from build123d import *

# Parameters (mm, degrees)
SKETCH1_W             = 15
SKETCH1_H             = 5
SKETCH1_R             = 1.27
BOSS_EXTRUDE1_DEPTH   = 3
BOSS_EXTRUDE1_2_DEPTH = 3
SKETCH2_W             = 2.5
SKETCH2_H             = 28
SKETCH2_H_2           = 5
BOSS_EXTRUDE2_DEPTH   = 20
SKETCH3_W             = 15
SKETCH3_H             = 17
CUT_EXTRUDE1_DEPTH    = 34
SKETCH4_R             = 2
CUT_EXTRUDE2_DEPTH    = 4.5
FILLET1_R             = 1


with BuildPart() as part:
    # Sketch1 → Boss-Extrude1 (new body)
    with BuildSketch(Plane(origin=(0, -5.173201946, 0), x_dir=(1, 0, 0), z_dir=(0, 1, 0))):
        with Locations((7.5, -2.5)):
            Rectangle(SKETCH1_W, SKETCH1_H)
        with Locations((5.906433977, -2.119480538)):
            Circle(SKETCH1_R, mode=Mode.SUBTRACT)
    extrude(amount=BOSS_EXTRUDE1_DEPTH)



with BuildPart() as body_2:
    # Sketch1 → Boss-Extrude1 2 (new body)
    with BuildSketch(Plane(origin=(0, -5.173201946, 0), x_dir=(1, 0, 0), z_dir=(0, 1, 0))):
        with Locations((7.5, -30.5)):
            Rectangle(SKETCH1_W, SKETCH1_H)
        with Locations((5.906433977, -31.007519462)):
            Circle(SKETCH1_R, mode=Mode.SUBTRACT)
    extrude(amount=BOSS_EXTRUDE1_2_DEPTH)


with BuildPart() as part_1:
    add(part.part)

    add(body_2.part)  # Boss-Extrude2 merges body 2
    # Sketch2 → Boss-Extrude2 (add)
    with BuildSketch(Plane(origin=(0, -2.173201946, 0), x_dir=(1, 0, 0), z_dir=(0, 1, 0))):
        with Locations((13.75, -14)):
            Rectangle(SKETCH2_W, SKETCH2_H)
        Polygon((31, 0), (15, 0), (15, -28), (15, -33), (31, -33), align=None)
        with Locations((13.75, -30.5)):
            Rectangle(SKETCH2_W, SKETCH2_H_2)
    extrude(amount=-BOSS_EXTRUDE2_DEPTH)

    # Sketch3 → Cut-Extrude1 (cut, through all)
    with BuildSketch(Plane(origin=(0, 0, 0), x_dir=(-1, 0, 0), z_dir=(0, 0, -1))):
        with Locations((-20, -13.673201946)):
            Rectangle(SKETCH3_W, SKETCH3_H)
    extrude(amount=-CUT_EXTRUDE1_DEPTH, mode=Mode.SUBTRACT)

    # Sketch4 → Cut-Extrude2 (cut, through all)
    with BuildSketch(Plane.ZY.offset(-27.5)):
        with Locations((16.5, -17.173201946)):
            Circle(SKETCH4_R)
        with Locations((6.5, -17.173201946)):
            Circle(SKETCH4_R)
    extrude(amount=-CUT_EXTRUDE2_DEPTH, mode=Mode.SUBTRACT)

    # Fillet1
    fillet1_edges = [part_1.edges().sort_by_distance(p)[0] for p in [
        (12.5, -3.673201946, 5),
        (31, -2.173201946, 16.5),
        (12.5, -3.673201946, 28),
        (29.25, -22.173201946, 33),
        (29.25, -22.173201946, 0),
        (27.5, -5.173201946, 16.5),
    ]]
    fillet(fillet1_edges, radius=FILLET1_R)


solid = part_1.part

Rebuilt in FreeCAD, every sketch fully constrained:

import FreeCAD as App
import Part
import Sketcher

V = App.Vector
Q = App.Units.Quantity


def edges_at(feature, points):
    """Names of the edges that pass closest to the given points."""
    edges = feature.Shape.Edges
    near = lambda p: min(range(len(edges)), key=lambda i: edges[i].distToShape(Part.Vertex(*p))[0])
    return sorted({f"Edge{near(p) + 1}" for p in points})

doc = App.newDocument("Part")
body = doc.addObject("PartDesign::Body", "Body")

# Sketch on XZ plane
sketch1 = doc.addObject("Sketcher::SketchObject", "Sketch")
body.addObject(sketch1)
sketch1.AttachmentSupport = (doc.XZ_Plane, [""])
sketch1.MapMode = "FlatFace"
sketch1.AttachmentOffset = App.Placement(V(0, 0, 5.173202), App.Rotation())
sketch1.addGeometry([
    Part.LineSegment(V(0, 0, 0), V(0, 5, 0)),  # 0
    Part.LineSegment(V(0, 5, 0), V(15, 5, 0)),  # 1
    Part.LineSegment(V(15, 5, 0), V(15, 0, 0)),  # 2
    Part.LineSegment(V(15, 0, 0), V(0, 0, 0)),  # 3
    Part.Circle(V(5.9, 2.1, 0), V(0, 0, 1), 1.3),  # 4
], False)
sketch1.addConstraint([
    Sketcher.Constraint("Coincident", 0, 2, 1, 1),
    Sketcher.Constraint("Coincident", 1, 2, 2, 1),
    Sketcher.Constraint("Coincident", 2, 2, 3, 1),
    Sketcher.Constraint("Coincident", 3, 2, 0, 1),
    Sketcher.Constraint("Vertical", 0),
    Sketcher.Constraint("Horizontal", 1),
    Sketcher.Constraint("Vertical", 2),
    Sketcher.Constraint("Horizontal", 3),
    Sketcher.Constraint("Coincident", 3, 2, -1, 1),
    Sketcher.Constraint("Diameter", 4, Q("2.54 mm")),
    Sketcher.Constraint("DistanceX", 1, 1, 1, 2, Q("15 mm")),
    Sketcher.Constraint("DistanceY", 0, 1, 0, 2, Q("5 mm")),
    Sketcher.Constraint("DistanceY", -1, 1, 4, 3, Q("2.119481 mm")),
    Sketcher.Constraint("DistanceX", -1, 1, 4, 3, Q("5.906434 mm")),
])
pad1 = doc.addObject("PartDesign::Pad", "Pad")
body.addObject(pad1)
pad1.Profile = sketch1
pad1.Length = 3
pad1.Reversed = True
body2 = doc.addObject("PartDesign::Body", "Body001")

# Sketch on XZ plane
sketch2 = doc.addObject("Sketcher::SketchObject", "Sketch001")
body2.addObject(sketch2)
sketch2.AttachmentSupport = (doc.getObject("XZ_Plane001"), [""])
sketch2.MapMode = "FlatFace"
sketch2.AttachmentOffset = App.Placement(V(0, 0, 5.173202), App.Rotation())
sketch2.addGeometry([
    Part.LineSegment(V(0, 28, 0), V(0, 33, 0)),  # 0
    Part.LineSegment(V(0, 33, 0), V(15, 33, 0)),  # 1
    Part.LineSegment(V(15, 33, 0), V(15, 28, 0)),  # 2
    Part.LineSegment(V(15, 28, 0), V(0, 28, 0)),  # 3
    Part.Circle(V(5.9, 31, 0), V(0, 0, 1), 1.3),  # 4
], False)
sketch2.addConstraint([
    Sketcher.Constraint("Coincident", 0, 2, 1, 1),
    Sketcher.Constraint("Coincident", 1, 2, 2, 1),
    Sketcher.Constraint("Coincident", 2, 2, 3, 1),
    Sketcher.Constraint("Coincident", 3, 2, 0, 1),
    Sketcher.Constraint("Vertical", 0),
    Sketcher.Constraint("Horizontal", 1),
    Sketcher.Constraint("Vertical", 2),
    Sketcher.Constraint("Horizontal", 3),
    Sketcher.Constraint("PointOnObject", 0, 2, -2),
    Sketcher.Constraint("Diameter", 4, Q("2.54 mm")),
    Sketcher.Constraint("DistanceX", 1, 1, 1, 2, Q("15 mm")),
    Sketcher.Constraint("DistanceY", 0, 1, 0, 2, Q("5 mm")),
    Sketcher.Constraint("DistanceY", -1, 1, 0, 2, Q("33 mm")),
    Sketcher.Constraint("DistanceY", -1, 1, 4, 3, Q("31.007519 mm")),
    Sketcher.Constraint("DistanceX", -1, 1, 4, 3, Q("5.906434 mm")),
])
pad2 = doc.addObject("PartDesign::Pad", "Pad001")
body2.addObject(pad2)
pad2.Profile = sketch2
pad2.Length = 3
pad2.Reversed = True
body.AllowCompound = True
doc.recompute()

boolean = doc.addObject("PartDesign::Boolean", "Boolean")
body.addObject(boolean)
boolean.Type = "Fuse"
boolean.addObjects([body2])

# Sketch on XZ plane
sketch3 = doc.addObject("Sketcher::SketchObject", "Sketch002")
body.addObject(sketch3)
sketch3.AttachmentSupport = (doc.XZ_Plane, [""])
sketch3.MapMode = "FlatFace"
sketch3.AttachmentOffset = App.Placement(V(0, 0, 2.173202), App.Rotation())
sketch3.addGeometry([
    Part.LineSegment(V(12, 0, 0), V(12, 33, 0)),
    Part.LineSegment(V(12, 33, 0), V(31, 33, 0)),
    Part.LineSegment(V(31, 33, 0), V(31, 0, 0)),
    Part.LineSegment(V(31, 0, 0), V(12, 0, 0)),
], False)
sketch3.addConstraint([
    Sketcher.Constraint("Coincident", 0, 2, 1, 1),
    Sketcher.Constraint("Coincident", 1, 2, 2, 1),
    Sketcher.Constraint("Coincident", 2, 2, 3, 1),
    Sketcher.Constraint("Coincident", 3, 2, 0, 1),
    Sketcher.Constraint("Vertical", 0),
    Sketcher.Constraint("Horizontal", 1),
    Sketcher.Constraint("Vertical", 2),
    Sketcher.Constraint("Horizontal", 3),
    Sketcher.Constraint("PointOnObject", 2, 2, -1),
    Sketcher.Constraint("DistanceY", 0, 1, 0, 2, Q("33 mm")),
    Sketcher.Constraint("DistanceX", 1, 1, 1, 2, Q("18.5 mm")),
    Sketcher.Constraint("DistanceX", -1, 1, 1, 2, Q("31 mm")),
])
pad3 = doc.addObject("PartDesign::Pad", "Pad002")
body.addObject(pad3)
pad3.Profile = sketch3
pad3.Length = 20

# Sketch on XY plane
sketch4 = doc.addObject("Sketcher::SketchObject", "Sketch003")
body.addObject(sketch4)
sketch4.AttachmentSupport = (doc.XY_Plane, [""])
sketch4.MapMode = "FlatFace"
sketch4.addGeometry([
    Part.LineSegment(V(28, -5, 0), V(28, -22, 0)),
    Part.LineSegment(V(28, -22, 0), V(12, -22, 0)),
    Part.LineSegment(V(12, -22, 0), V(12, -5, 0)),
    Part.LineSegment(V(12, -5, 0), V(28, -5, 0)),
], False)
sketch4.addConstraint([
    Sketcher.Constraint("Coincident", 0, 2, 1, 1),
    Sketcher.Constraint("Coincident", 1, 2, 2, 1),
    Sketcher.Constraint("Coincident", 2, 2, 3, 1),
    Sketcher.Constraint("Coincident", 3, 2, 0, 1),
    Sketcher.Constraint("Vertical", 0),
    Sketcher.Constraint("Horizontal", 1),
    Sketcher.Constraint("Vertical", 2),
    Sketcher.Constraint("Horizontal", 3),
    Sketcher.Constraint("DistanceX", 1, 2, 1, 1, Q("15 mm")),
    Sketcher.Constraint("DistanceY", 0, 2, 0, 1, Q("17 mm")),
    Sketcher.Constraint("DistanceX", -1, 1, 0, 2, Q("27.5 mm")),
    Sketcher.Constraint("DistanceY", 0, 2, -1, 1, Q("22.173202 mm")),
])
pocket1 = doc.addObject("PartDesign::Pocket", "Pocket")
body.addObject(pocket1)
pocket1.Profile = sketch4
pocket1.Type = "ThroughAll"
pocket1.Reversed = True

# Sketch on YZ plane
sketch5 = doc.addObject("Sketcher::SketchObject", "Sketch004")
body.addObject(sketch5)
sketch5.AttachmentSupport = (doc.YZ_Plane, [""])
sketch5.MapMode = "FlatFace"
sketch5.AttachmentOffset = App.Placement(V(0, 0, 27.5), App.Rotation())
sketch5.addGeometry([
    Part.Circle(V(-17.2, 16.5, 0), V(0, 0, 1), 2),
    Part.Circle(V(-17.2, 6.5, 0), V(0, 0, 1), 2),
], False)
sketch5.addConstraint([
    Sketcher.Constraint("Equal", 0, 1),
    Sketcher.Constraint("Vertical", 0, 3, 1, 3),
    Sketcher.Constraint("Diameter", 0, Q("4 mm")),
    Sketcher.Constraint("DistanceY", 1, 3, 0, 3, Q("10 mm")),
    Sketcher.Constraint("DistanceY", -1, 1, 0, 3, Q("16.5 mm")),
    Sketcher.Constraint("DistanceX", 0, 3, -1, 1, Q("17.173202 mm")),
])
pocket2 = doc.addObject("PartDesign::Pocket", "Pocket001")
body.addObject(pocket2)
pocket2.Profile = sketch5
pocket2.Type = "ThroughAll"
pocket2.Reversed = True
doc.recompute()

fillet = doc.addObject("PartDesign::Fillet", "Fillet")
body.addObject(fillet)
fillet.Base = (pocket2, edges_at(pocket2, [
    (12.5, -3.673, 5),
    (31, -2.173, 16.5),
    (12.5, -3.673, 28),
    (29.25, -22.173, 33),
    (29.25, -22.173, 0),
    (27.5, -5.173, 16.5),
]))
fillet.Radius = 1

doc.recompute()
